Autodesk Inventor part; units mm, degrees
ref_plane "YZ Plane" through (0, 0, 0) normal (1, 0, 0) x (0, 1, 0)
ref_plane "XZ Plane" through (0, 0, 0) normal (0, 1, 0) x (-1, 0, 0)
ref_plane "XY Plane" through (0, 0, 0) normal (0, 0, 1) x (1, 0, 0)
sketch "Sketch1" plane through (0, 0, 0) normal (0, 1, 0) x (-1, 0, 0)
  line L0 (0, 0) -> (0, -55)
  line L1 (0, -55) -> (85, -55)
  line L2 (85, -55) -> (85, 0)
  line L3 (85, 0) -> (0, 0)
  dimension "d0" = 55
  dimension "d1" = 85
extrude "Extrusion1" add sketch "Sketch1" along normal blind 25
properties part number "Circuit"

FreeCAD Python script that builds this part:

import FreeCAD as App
import Part
import Sketcher

V = App.Vector
Q = App.Units.Quantity

doc = App.newDocument("Part")
body = doc.addObject("PartDesign::Body", "Body")

sketch1 = doc.addObject("Sketcher::SketchObject", "Sketch")
body.addObject(sketch1)
sketch1.AttachmentSupport = (doc.XZ_Plane, [""])
sketch1.MapMode = "FlatFace"
sketch1.addGeometry(Part.LineSegment(V(-85, 0, 0), V(0, 0, 0)), False)
sketch1.addGeometry(Part.LineSegment(V(0, 0, 0), V(0, -55, 0)), False)
sketch1.addGeometry(Part.LineSegment(V(0, -55, 0), V(-85, -55, 0)), False)
sketch1.addGeometry(Part.LineSegment(V(-85, -55, 0), V(-85, 0, 0)), False)
sketch1.addConstraint(Sketcher.Constraint("Coincident", 0, 2, 1, 1))
sketch1.addConstraint(Sketcher.Constraint("Coincident", 1, 2, 2, 1))
sketch1.addConstraint(Sketcher.Constraint("Coincident", 2, 2, 3, 1))
sketch1.addConstraint(Sketcher.Constraint("Coincident", 3, 2, 0, 1))
sketch1.addConstraint(Sketcher.Constraint("Horizontal", 0))
sketch1.addConstraint(Sketcher.Constraint("Vertical", 1))
sketch1.addConstraint(Sketcher.Constraint("Horizontal", 2))
sketch1.addConstraint(Sketcher.Constraint("Vertical", 3))
sketch1.addConstraint(Sketcher.Constraint("Coincident", 0, 2, -1, 1))
sketch1.addConstraint(Sketcher.Constraint("DistanceX", 0, 1, 0, 2, Q("85 mm")))
sketch1.addConstraint(Sketcher.Constraint("DistanceY", 1, 2, 1, 1, Q("55 mm")))
pad1 = doc.addObject("PartDesign::Pad", "Pad")
body.addObject(pad1)
pad1.Profile = sketch1
pad1.Length = 25
pad1.Reversed = True

doc.recompute()
